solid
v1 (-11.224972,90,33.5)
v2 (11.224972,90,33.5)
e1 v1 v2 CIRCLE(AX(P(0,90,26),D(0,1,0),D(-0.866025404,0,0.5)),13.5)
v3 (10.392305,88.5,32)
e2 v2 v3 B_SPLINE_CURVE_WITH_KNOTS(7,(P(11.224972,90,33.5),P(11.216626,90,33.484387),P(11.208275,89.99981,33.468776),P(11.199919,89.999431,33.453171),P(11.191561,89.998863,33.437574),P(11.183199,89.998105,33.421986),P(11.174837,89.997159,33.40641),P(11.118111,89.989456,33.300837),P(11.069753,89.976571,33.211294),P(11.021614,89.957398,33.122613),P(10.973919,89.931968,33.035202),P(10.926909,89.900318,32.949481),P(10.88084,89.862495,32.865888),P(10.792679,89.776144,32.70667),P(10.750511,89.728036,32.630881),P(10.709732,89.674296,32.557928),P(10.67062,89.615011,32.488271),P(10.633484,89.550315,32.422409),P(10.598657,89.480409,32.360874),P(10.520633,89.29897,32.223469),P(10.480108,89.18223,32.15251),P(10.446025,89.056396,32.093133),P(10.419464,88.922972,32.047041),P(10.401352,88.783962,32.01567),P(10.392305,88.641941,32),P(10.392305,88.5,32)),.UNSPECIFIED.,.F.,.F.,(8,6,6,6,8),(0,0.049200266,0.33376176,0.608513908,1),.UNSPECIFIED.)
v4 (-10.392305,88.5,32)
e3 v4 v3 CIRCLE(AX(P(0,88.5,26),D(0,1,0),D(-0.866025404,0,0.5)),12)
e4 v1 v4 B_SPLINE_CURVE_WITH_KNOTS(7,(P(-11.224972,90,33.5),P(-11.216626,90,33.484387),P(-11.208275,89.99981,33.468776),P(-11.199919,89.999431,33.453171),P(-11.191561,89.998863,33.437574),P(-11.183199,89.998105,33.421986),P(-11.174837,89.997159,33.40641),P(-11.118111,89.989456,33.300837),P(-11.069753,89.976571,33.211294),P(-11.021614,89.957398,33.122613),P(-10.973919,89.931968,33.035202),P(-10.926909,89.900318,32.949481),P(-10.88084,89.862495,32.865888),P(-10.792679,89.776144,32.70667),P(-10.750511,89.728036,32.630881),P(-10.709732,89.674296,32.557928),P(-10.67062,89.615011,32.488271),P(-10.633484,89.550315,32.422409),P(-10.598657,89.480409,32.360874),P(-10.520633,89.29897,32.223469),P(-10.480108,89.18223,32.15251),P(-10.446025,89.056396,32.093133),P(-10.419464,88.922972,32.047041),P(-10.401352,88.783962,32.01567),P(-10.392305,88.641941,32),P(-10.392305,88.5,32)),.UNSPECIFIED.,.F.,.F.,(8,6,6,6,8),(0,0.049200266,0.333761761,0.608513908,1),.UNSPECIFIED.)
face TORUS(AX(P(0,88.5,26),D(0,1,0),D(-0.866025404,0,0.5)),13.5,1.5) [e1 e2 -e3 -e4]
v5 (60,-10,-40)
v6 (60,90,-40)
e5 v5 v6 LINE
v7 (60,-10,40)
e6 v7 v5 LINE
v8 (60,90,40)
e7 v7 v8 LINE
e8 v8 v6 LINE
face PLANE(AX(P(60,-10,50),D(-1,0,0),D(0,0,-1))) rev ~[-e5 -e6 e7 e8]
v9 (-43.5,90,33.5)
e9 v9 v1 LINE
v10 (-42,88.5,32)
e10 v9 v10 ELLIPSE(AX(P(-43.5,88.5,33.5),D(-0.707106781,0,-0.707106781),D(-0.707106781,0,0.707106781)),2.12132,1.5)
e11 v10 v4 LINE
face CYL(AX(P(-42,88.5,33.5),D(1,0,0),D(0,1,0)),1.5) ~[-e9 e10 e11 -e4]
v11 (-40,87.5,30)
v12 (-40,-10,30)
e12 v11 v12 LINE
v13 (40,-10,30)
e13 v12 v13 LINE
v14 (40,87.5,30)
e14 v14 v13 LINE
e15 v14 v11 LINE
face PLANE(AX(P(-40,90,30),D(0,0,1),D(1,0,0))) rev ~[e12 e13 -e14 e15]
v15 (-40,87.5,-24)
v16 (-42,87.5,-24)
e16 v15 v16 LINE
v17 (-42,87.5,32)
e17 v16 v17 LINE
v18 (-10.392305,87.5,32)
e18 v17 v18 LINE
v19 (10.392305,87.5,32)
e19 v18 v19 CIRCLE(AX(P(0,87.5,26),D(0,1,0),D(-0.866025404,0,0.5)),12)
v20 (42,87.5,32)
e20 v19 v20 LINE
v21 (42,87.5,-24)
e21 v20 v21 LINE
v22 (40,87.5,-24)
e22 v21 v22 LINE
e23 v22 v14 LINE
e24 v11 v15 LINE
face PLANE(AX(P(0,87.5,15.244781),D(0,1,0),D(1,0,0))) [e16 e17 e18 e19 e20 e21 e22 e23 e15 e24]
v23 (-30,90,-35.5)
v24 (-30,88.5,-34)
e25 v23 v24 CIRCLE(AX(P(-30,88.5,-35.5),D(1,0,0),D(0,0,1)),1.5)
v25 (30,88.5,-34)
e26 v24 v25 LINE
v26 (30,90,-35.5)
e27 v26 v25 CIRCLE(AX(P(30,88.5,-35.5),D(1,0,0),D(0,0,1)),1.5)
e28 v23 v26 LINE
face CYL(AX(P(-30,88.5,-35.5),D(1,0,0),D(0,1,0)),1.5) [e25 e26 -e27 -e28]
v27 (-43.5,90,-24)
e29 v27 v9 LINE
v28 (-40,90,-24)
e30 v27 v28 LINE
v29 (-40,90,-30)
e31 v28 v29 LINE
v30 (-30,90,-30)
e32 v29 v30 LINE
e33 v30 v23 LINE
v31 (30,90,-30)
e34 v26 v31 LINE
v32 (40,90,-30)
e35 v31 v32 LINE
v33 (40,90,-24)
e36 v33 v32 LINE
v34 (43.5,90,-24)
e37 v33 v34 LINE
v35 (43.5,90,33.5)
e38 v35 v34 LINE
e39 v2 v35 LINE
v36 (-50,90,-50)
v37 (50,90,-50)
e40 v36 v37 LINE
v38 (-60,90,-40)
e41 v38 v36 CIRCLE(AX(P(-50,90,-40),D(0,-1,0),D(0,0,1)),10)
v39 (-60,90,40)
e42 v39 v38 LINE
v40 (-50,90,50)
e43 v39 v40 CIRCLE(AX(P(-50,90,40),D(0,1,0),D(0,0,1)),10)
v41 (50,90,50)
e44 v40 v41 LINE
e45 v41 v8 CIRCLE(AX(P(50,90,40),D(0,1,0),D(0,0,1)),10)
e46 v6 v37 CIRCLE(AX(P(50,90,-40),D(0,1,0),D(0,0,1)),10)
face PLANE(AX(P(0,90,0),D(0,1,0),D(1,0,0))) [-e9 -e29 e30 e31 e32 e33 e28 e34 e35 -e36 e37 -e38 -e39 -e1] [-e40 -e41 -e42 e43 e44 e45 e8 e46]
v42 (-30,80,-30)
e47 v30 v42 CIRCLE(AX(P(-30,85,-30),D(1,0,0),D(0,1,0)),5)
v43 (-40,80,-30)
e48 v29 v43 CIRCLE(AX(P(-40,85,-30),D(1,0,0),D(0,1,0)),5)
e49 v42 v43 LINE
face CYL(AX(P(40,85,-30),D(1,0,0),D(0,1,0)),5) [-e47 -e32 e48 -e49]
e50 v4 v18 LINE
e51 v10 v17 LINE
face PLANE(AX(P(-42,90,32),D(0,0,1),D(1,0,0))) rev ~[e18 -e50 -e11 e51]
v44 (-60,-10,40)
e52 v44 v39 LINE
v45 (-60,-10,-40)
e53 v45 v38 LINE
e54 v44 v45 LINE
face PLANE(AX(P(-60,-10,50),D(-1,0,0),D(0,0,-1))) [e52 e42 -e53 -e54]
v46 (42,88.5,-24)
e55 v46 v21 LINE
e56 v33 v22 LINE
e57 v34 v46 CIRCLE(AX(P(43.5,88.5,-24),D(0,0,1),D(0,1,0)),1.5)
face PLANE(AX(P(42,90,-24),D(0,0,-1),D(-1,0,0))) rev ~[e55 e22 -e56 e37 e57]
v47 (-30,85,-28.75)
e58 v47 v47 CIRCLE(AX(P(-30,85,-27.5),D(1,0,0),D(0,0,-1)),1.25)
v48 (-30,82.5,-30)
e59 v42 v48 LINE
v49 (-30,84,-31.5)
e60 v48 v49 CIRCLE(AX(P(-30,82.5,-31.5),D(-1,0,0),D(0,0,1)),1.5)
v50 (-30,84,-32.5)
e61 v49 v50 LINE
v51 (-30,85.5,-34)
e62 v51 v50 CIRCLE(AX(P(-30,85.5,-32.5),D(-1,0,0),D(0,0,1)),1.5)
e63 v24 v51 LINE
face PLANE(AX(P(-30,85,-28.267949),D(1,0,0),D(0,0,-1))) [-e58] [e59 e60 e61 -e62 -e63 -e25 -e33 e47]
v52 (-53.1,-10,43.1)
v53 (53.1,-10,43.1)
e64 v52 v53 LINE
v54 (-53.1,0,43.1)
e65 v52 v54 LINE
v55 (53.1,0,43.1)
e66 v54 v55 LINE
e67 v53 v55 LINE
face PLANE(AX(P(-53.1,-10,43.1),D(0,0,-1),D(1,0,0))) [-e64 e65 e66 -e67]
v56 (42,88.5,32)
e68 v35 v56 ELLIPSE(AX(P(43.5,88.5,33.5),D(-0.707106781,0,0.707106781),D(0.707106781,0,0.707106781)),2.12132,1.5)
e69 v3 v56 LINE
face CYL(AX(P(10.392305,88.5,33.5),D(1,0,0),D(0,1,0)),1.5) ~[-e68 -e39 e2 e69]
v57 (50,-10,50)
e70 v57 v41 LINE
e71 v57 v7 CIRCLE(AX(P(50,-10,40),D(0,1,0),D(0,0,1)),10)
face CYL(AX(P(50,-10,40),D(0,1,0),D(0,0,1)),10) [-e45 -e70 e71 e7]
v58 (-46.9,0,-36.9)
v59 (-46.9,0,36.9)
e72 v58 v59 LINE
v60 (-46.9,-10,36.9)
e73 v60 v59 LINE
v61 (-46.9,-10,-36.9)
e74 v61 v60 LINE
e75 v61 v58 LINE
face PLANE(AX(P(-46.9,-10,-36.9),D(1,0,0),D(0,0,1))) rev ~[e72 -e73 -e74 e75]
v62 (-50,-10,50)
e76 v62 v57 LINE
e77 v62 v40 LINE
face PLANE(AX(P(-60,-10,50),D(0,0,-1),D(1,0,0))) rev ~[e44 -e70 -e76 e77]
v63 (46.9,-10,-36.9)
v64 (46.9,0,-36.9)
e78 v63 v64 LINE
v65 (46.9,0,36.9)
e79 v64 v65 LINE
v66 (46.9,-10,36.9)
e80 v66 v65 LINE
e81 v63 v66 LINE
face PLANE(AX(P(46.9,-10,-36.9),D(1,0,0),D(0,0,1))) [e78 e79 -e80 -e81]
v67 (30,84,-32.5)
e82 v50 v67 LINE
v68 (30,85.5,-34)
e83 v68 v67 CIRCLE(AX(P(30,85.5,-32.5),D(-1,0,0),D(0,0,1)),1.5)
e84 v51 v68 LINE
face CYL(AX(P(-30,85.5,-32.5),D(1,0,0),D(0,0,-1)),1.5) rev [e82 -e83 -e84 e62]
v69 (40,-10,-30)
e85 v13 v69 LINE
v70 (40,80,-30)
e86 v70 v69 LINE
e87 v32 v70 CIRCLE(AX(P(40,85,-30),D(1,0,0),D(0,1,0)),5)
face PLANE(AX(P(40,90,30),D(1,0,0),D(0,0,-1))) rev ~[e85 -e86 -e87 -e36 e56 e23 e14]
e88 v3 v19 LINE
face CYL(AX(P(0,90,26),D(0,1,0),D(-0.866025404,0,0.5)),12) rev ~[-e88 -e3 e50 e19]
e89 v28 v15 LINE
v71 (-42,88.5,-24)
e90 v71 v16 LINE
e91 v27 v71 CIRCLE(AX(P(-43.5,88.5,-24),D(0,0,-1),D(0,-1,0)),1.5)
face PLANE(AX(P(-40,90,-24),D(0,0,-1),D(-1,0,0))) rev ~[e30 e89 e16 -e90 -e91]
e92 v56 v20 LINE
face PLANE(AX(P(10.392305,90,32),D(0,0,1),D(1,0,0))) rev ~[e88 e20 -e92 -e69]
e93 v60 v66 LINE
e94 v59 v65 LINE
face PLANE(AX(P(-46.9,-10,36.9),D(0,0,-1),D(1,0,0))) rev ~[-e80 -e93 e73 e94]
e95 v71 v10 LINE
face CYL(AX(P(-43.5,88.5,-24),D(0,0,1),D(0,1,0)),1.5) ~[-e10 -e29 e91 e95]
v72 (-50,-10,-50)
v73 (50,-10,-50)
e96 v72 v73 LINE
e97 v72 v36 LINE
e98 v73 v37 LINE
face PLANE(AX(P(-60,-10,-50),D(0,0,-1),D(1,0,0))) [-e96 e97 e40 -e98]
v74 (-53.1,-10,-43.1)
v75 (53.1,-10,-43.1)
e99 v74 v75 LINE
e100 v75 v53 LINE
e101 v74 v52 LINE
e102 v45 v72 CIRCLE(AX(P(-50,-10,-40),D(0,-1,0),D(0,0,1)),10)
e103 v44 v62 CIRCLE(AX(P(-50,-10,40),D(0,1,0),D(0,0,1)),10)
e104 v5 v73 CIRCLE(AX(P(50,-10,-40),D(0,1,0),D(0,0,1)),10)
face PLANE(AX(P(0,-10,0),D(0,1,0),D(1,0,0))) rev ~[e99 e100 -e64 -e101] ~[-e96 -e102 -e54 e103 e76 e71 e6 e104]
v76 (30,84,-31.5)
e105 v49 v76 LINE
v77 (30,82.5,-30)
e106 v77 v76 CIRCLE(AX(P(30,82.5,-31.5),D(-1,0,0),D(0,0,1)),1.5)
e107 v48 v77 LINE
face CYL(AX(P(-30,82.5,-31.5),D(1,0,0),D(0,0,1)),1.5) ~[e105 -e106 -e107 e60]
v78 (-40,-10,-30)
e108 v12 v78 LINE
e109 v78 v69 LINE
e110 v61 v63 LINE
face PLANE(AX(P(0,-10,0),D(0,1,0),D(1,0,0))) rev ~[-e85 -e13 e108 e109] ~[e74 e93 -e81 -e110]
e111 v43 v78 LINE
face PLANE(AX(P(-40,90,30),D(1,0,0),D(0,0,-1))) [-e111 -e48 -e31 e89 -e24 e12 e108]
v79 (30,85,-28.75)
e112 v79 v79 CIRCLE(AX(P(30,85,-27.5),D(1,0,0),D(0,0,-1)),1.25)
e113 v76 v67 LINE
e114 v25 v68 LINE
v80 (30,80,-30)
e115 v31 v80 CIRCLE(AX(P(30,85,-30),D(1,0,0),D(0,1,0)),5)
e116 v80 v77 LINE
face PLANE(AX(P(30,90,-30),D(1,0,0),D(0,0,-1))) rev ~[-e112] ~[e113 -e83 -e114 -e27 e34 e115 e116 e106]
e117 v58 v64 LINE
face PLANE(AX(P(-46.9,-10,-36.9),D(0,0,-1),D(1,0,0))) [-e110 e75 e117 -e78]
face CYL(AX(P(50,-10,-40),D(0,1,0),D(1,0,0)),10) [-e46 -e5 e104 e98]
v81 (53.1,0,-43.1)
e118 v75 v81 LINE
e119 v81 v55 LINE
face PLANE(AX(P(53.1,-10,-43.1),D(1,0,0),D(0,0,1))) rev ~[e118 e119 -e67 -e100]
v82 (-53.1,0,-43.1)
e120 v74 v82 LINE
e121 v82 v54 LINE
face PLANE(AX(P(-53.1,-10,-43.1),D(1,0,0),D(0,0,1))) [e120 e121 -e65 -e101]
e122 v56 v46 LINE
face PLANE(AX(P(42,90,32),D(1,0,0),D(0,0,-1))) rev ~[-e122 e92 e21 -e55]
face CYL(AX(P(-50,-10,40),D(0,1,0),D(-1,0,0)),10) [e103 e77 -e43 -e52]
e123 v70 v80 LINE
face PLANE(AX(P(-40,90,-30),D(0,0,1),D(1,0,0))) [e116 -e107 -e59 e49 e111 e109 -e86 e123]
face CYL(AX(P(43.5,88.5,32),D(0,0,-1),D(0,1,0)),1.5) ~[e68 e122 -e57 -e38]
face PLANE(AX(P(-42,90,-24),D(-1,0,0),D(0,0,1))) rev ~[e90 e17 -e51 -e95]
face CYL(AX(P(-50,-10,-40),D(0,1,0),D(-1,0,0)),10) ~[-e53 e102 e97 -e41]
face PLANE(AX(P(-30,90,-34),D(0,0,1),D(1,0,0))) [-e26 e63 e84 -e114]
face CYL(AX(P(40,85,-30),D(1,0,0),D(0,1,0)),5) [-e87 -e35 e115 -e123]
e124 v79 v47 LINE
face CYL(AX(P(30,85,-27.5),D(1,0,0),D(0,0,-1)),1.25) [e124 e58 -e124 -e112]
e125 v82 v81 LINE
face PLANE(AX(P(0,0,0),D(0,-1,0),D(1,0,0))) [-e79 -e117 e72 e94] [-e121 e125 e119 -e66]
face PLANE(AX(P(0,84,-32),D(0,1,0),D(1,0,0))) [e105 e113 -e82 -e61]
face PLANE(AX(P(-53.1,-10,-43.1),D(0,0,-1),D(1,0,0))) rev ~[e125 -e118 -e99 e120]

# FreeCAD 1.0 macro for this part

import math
import FreeCAD as App
import Part
import Sketcher
Q = App.Units.Quantity


def edges_at(feature, points):
    """Names of the edges that pass closest to the given points."""
    edges = feature.Shape.Edges
    near = lambda p: min(range(len(edges)), key=lambda i: edges[i].distToShape(Part.Vertex(*p))[0])
    return sorted({f"Edge{near(p) + 1}" for p in points})


def add_polygon(sketch, points):
    """Adds a closed chain of lines whose ends are joined by coincident constraints."""
    first, n = sketch.GeometryCount, len(points)
    for a, b in zip(points, points[1:] + points[:1]):
        sketch.addGeometry(Part.LineSegment(App.Vector(*a, 0), App.Vector(*b, 0)), False)
    for i in range(n):
        sketch.addConstraint(Sketcher.Constraint("Coincident", first + i, 2, first + (i + 1) % n, 1))

doc = App.newDocument("Part")
body = doc.addObject("PartDesign::Body", "Body")

# Sketch on XZ plane
sketch1 = body.newObject("Sketcher::SketchObject", "Sketch")
sketch1.AttachmentSupport = (doc.getObject("XZ_Plane"), [""])
sketch1.MapMode = "FlatFace"
add_polygon(sketch1, [(-60, -50), (-60, 50), (60, 50), (60, -50)])  # lines 0-3
sketch1.addConstraint(Sketcher.Constraint("Vertical", 0))
sketch1.addConstraint(Sketcher.Constraint("Horizontal", 1))
sketch1.addConstraint(Sketcher.Constraint("Vertical", 2))
sketch1.addConstraint(Sketcher.Constraint("Horizontal", 3))
sketch1.addConstraint(Sketcher.Constraint("Symmetric", 0, 2, 2, 2, -1, 1))
sketch1.addConstraint(Sketcher.Constraint("DistanceX", 1, 1, 1, 2, Q("120 mm")))
sketch1.addConstraint(Sketcher.Constraint("DistanceY", 0, 1, 0, 2, Q("100 mm")))
pad1 = body.newObject("PartDesign::Pad", "Pad")
pad1.Profile = sketch1
pad1.Type = "TwoLengths"
pad1.Length = 90
pad1.Length2 = 10
pad1.Reversed = True
doc.recompute()

fillet = body.newObject("PartDesign::Fillet", "Fillet")
fillet.Base = (pad1, edges_at(pad1, [
    (-60, 40, -50),
    (60, 40, -50),
    (60, 40, 50),
    (-60, 40, 50),
]))
fillet.Radius = 10

# Sketch on XZ plane
sketch2 = body.newObject("Sketcher::SketchObject", "Sketch001")
sketch2.AttachmentSupport = (doc.getObject("XZ_Plane"), [""])
sketch2.MapMode = "FlatFace"
sketch2.AttachmentOffset = App.Placement(App.Vector(0, 0, -90), App.Rotation())
add_polygon(sketch2, [(-40, -30), (-40, 30), (40, 30), (40, -30)])  # lines 0-3
sketch2.addConstraint(Sketcher.Constraint("Vertical", 0))
sketch2.addConstraint(Sketcher.Constraint("Horizontal", 1))
sketch2.addConstraint(Sketcher.Constraint("Vertical", 2))
sketch2.addConstraint(Sketcher.Constraint("Horizontal", 3))
sketch2.addConstraint(Sketcher.Constraint("Symmetric", 0, 2, 2, 2, -1, 1))
sketch2.addConstraint(Sketcher.Constraint("DistanceX", 1, 1, 1, 2, Q("80 mm")))
sketch2.addConstraint(Sketcher.Constraint("DistanceY", 0, 1, 0, 2, Q("60 mm")))
pocket1 = body.newObject("PartDesign::Pocket", "Pocket")
pocket1.Profile = sketch2
pocket1.Type = "ThroughAll"
pocket1.Reversed = True

# Sketch on XZ plane
sketch3 = body.newObject("Sketcher::SketchObject", "Sketch002")
sketch3.AttachmentSupport = (doc.getObject("XZ_Plane"), [""])
sketch3.MapMode = "FlatFace"
sketch3.AttachmentOffset = App.Placement(App.Vector(0, 0, 10), App.Rotation())
add_polygon(sketch3, [(-53, 43), (-53, -43), (53, -43), (53, 43)])  # lines 0-3
add_polygon(sketch3, [(47, -37), (-47, -37), (-47, 37), (47, 37)])  # lines 4-7
sketch3.addConstraint(Sketcher.Constraint("Vertical", 0))
sketch3.addConstraint(Sketcher.Constraint("Horizontal", 1))
sketch3.addConstraint(Sketcher.Constraint("Vertical", 2))
sketch3.addConstraint(Sketcher.Constraint("Horizontal", 3))
sketch3.addConstraint(Sketcher.Constraint("Horizontal", 4))
sketch3.addConstraint(Sketcher.Constraint("Vertical", 5))
sketch3.addConstraint(Sketcher.Constraint("Horizontal", 6))
sketch3.addConstraint(Sketcher.Constraint("Vertical", 7))
sketch3.addConstraint(Sketcher.Constraint("Symmetric", 0, 2, 2, 2, -1, 1))
sketch3.addConstraint(Sketcher.Constraint("Symmetric", 4, 2, 6, 2, -1, 1))
sketch3.addConstraint(Sketcher.Constraint("DistanceX", 1, 1, 1, 2, Q("106.2 mm")))
sketch3.addConstraint(Sketcher.Constraint("DistanceX", 4, 2, 4, 1, Q("93.8 mm")))
sketch3.addConstraint(Sketcher.Constraint("DistanceY", 0, 2, 0, 1, Q("86.2 mm")))
sketch3.addConstraint(Sketcher.Constraint("DistanceY", 5, 1, 5, 2, Q("73.8 mm")))
pocket2 = body.newObject("PartDesign::Pocket", "Pocket001")
pocket2.Profile = sketch3
pocket2.Length = 10

# Sketch on YZ plane
sketch4 = body.newObject("Sketcher::SketchObject", "Sketch003")
sketch4.AttachmentSupport = (doc.getObject("YZ_Plane"), [""])
sketch4.MapMode = "FlatFace"
sketch4.AttachmentOffset = App.Placement(App.Vector(0, 0, 40), App.Rotation())
sketch4.addGeometry(Part.LineSegment(App.Vector(80, -30, 0), App.Vector(90, -30, 0)), False)
sketch4.addGeometry(Part.ArcOfCircle(Part.Circle(App.Vector(85, -30, 0), App.Vector(0, 0, 1), 5), math.radians(0), math.radians(180)), False)
sketch4.addConstraint(Sketcher.Constraint("Coincident", 0, 1, 1, 2))
sketch4.addConstraint(Sketcher.Constraint("Coincident", 1, 1, 0, 2))
sketch4.addConstraint(Sketcher.Constraint("Horizontal", 0))
sketch4.addConstraint(Sketcher.Constraint("Horizontal", 1, 3, 0, 1))
sketch4.addConstraint(Sketcher.Constraint("Radius", 1, Q("5 mm")))
sketch4.addConstraint(Sketcher.Constraint("DistanceX", -1, 1, 1, 3, Q("85 mm")))
sketch4.addConstraint(Sketcher.Constraint("DistanceY", 1, 3, -1, 1, Q("30 mm")))
pad2 = body.newObject("PartDesign::Pad", "Pad001")
pad2.Profile = sketch4
pad2.Length = 80
pad2.Reversed = True

# Sketch on YZ plane
sketch5 = body.newObject("Sketcher::SketchObject", "Sketch004")
sketch5.AttachmentSupport = (doc.getObject("YZ_Plane"), [""])
sketch5.MapMode = "FlatFace"
sketch5.AttachmentOffset = App.Placement(App.Vector(0, 0, 30), App.Rotation())
sketch5.addGeometry(Part.LineSegment(App.Vector(80, -30, 0), App.Vector(90, -30, 0)), False)
sketch5.addGeometry(Part.ArcOfCircle(Part.Circle(App.Vector(85, -30, 0), App.Vector(0, 0, 1), 5), math.radians(0), math.radians(180)), False)
sketch5.addGeometry(Part.Circle(App.Vector(85, -27.5, 0), App.Vector(0, 0, 1), 1.2), False)
sketch5.addConstraint(Sketcher.Constraint("Coincident", 0, 1, 1, 2))
sketch5.addConstraint(Sketcher.Constraint("Coincident", 1, 1, 0, 2))
sketch5.addConstraint(Sketcher.Constraint("Horizontal", 0))
sketch5.addConstraint(Sketcher.Constraint("Horizontal", 1, 3, 0, 1))
sketch5.addConstraint(Sketcher.Constraint("Vertical", 1, 3, 2, 3))
sketch5.addConstraint(Sketcher.Constraint("Radius", 1, Q("5 mm")))
sketch5.addConstraint(Sketcher.Constraint("Diameter", 2, Q("2.5 mm")))
sketch5.addConstraint(Sketcher.Constraint("DistanceX", -1, 1, 1, 3, Q("85 mm")))
sketch5.addConstraint(Sketcher.Constraint("DistanceY", 1, 3, -1, 1, Q("30 mm")))
sketch5.addConstraint(Sketcher.Constraint("DistanceY", 2, 3, -1, 1, Q("27.5 mm")))
pocket3 = body.newObject("PartDesign::Pocket", "Pocket002")
pocket3.Profile = sketch5
pocket3.Length = 60

# Sketch on XZ plane
sketch6 = body.newObject("Sketcher::SketchObject", "Sketch005")
sketch6.AttachmentSupport = (doc.getObject("XZ_Plane"), [""])
sketch6.MapMode = "FlatFace"
sketch6.AttachmentOffset = App.Placement(App.Vector(0, 0, -90), App.Rotation())
sketch6.addGeometry(Part.LineSegment(App.Vector(-40, 30, 0), App.Vector(-40, -24, 0)), False)
sketch6.addGeometry(Part.LineSegment(App.Vector(-40, -24, 0), App.Vector(-42, -24, 0)), False)
sketch6.addGeometry(Part.LineSegment(App.Vector(-42, -24, 0), App.Vector(-42, 32, 0)), False)
sketch6.addGeometry(Part.LineSegment(App.Vector(-42, 32, 0), App.Vector(-10.4, 32, 0)), False)
sketch6.addGeometry(Part.ArcOfCircle(Part.Circle(App.Vector(0, 26, 0), App.Vector(0, 0, 1), 12), math.radians(30), math.radians(150)), False)
sketch6.addGeometry(Part.LineSegment(App.Vector(10.4, 32, 0), App.Vector(42, 32, 0)), False)
sketch6.addGeometry(Part.LineSegment(App.Vector(42, 32, 0), App.Vector(42, -24, 0)), False)
sketch6.addGeometry(Part.LineSegment(App.Vector(42, -24, 0), App.Vector(40, -24, 0)), False)
sketch6.addGeometry(Part.LineSegment(App.Vector(40, -24, 0), App.Vector(40, 30, 0)), False)
sketch6.addGeometry(Part.LineSegment(App.Vector(40, 30, 0), App.Vector(-40, 30, 0)), False)
sketch6.addConstraint(Sketcher.Constraint("Coincident", 0, 2, 1, 1))
sketch6.addConstraint(Sketcher.Constraint("Coincident", 1, 2, 2, 1))
sketch6.addConstraint(Sketcher.Constraint("Coincident", 2, 2, 3, 1))
sketch6.addConstraint(Sketcher.Constraint("Coincident", 3, 2, 4, 2))
sketch6.addConstraint(Sketcher.Constraint("Coincident", 4, 1, 5, 1))
sketch6.addConstraint(Sketcher.Constraint("Coincident", 5, 2, 6, 1))
sketch6.addConstraint(Sketcher.Constraint("Coincident", 6, 2, 7, 1))
sketch6.addConstraint(Sketcher.Constraint("Coincident", 7, 2, 8, 1))
sketch6.addConstraint(Sketcher.Constraint("Coincident", 8, 2, 9, 1))
sketch6.addConstraint(Sketcher.Constraint("Coincident", 9, 2, 0, 1))
sketch6.addConstraint(Sketcher.Constraint("Vertical", 0))
sketch6.addConstraint(Sketcher.Constraint("Horizontal", 1))
sketch6.addConstraint(Sketcher.Constraint("Vertical", 2))
sketch6.addConstraint(Sketcher.Constraint("Horizontal", 3))
sketch6.addConstraint(Sketcher.Constraint("Horizontal", 5))
sketch6.addConstraint(Sketcher.Constraint("Vertical", 6))
sketch6.addConstraint(Sketcher.Constraint("Horizontal", 7))
sketch6.addConstraint(Sketcher.Constraint("Vertical", 8))
sketch6.addConstraint(Sketcher.Constraint("Horizontal", 9))
sketch6.addConstraint(Sketcher.Constraint("Symmetric", 3, 2, 4, 1, -2))
sketch6.addConstraint(Sketcher.Constraint("Symmetric", 1, 2, 6, 2, -2))
sketch6.addConstraint(Sketcher.Constraint("Equal", 1, 7))
sketch6.addConstraint(Sketcher.Constraint("Radius", 4, Q("12 mm")))
sketch6.addConstraint(Sketcher.Constraint("DistanceX", 1, 2, 1, 1, Q("2 mm")))
sketch6.addConstraint(Sketcher.Constraint("DistanceX", 9, 2, 9, 1, Q("80 mm")))
sketch6.addConstraint(Sketcher.Constraint("DistanceY", 0, 2, 0, 1, Q("54 mm")))
sketch6.addConstraint(Sketcher.Constraint("DistanceY", 2, 1, 2, 2, Q("56 mm")))
sketch6.addConstraint(Sketcher.Constraint("DistanceY", -1, 1, 4, 3, Q("26 mm")))
sketch6.addConstraint(Sketcher.Constraint("DistanceY", 0, 2, -1, 1, Q("24 mm")))
pocket4 = body.newObject("PartDesign::Pocket", "Pocket003")
pocket4.Profile = sketch6
pocket4.Length = 2.5
pocket4.Reversed = True

# Sketch on XZ plane
sketch7 = body.newObject("Sketcher::SketchObject", "Sketch006")
sketch7.AttachmentSupport = (doc.getObject("XZ_Plane"), [""])
sketch7.MapMode = "FlatFace"
sketch7.AttachmentOffset = App.Placement(App.Vector(0, 0, -90), App.Rotation())
add_polygon(sketch7, [(-30, -34), (-30, -30), (30, -30), (30, -34)])  # lines 0-3
sketch7.addConstraint(Sketcher.Constraint("Vertical", 0))
sketch7.addConstraint(Sketcher.Constraint("Horizontal", 1))
sketch7.addConstraint(Sketcher.Constraint("Vertical", 2))
sketch7.addConstraint(Sketcher.Constraint("Horizontal", 3))
sketch7.addConstraint(Sketcher.Constraint("DistanceX", 1, 1, 1, 2, Q("60 mm")))
sketch7.addConstraint(Sketcher.Constraint("DistanceY", 0, 1, 0, 2, Q("4 mm")))
sketch7.addConstraint(Sketcher.Constraint("DistanceX", 0, 2, -1, 1, Q("30 mm")))
sketch7.addConstraint(Sketcher.Constraint("DistanceY", 0, 2, -1, 1, Q("30 mm")))
pocket5 = body.newObject("PartDesign::Pocket", "Pocket004")
pocket5.Profile = sketch7
pocket5.Length = 6
pocket5.Reversed = True
doc.recompute()

fillet2 = body.newObject("PartDesign::Fillet", "Fillet001")
fillet2.Base = (pocket5, edges_at(pocket5, [
    (-42, 90, 4),
    (-26.196, 90, 32),
    (0, 90, 38),
    (26.196, 90, 32),
    (42, 90, 4),
    (0, 84, -34),
    (0, 84, -30),
    (0, 90, -34),
]))
fillet2.Radius = 1.5

doc.recompute()
